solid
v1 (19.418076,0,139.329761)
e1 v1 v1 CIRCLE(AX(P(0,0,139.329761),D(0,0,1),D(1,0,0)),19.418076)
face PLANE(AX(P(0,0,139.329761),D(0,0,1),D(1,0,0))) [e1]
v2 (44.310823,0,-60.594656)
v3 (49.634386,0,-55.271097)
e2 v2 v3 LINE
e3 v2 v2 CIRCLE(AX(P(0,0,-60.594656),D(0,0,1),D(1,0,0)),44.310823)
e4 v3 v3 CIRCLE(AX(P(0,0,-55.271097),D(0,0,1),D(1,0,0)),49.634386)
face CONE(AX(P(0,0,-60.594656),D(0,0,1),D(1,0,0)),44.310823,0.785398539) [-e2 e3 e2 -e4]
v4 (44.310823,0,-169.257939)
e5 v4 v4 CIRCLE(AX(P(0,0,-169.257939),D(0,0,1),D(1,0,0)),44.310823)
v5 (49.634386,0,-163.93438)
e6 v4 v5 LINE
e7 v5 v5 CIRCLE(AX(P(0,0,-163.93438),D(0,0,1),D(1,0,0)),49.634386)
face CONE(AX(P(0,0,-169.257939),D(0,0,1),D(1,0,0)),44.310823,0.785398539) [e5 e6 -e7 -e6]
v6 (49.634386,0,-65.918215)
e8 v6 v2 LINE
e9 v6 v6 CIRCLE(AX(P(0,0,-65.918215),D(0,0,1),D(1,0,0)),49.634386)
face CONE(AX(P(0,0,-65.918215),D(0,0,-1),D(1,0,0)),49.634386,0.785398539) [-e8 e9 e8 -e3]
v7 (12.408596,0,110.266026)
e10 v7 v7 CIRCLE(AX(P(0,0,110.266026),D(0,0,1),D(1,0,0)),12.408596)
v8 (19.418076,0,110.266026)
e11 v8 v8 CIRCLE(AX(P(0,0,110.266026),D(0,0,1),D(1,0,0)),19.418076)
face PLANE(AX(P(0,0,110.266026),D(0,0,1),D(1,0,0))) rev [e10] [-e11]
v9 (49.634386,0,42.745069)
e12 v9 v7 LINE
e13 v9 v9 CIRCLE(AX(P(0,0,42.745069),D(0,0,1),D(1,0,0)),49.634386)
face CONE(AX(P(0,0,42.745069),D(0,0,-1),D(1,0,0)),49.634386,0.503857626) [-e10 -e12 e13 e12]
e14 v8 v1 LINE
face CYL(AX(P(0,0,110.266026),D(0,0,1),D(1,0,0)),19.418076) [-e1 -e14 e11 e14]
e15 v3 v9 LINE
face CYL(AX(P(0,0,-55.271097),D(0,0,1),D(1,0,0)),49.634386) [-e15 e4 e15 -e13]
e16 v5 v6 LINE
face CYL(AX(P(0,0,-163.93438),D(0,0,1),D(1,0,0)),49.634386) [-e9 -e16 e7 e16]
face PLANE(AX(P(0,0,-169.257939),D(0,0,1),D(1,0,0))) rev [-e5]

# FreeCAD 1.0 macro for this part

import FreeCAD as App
import Part
import Sketcher

V = App.Vector
Q = App.Units.Quantity

doc = App.newDocument("Part")
body = doc.addObject("PartDesign::Body", "Body")

# Sketch on XZ plane
sketch1 = body.newObject("Sketcher::SketchObject", "Sketch")
sketch1.AttachmentSupport = (doc.getObject("XZ_Plane"), [""])
sketch1.MapMode = "FlatFace"
sketch1.addGeometry(Part.LineSegment(V(0, -169, 0), V(44, -169, 0)), False)
sketch1.addGeometry(Part.LineSegment(V(44, -169, 0), V(50, -164, 0)), False)
sketch1.addGeometry(Part.LineSegment(V(50, -164, 0), V(50, -66, 0)), False)
sketch1.addGeometry(Part.LineSegment(V(50, -66, 0), V(44, -61, 0)), False)
sketch1.addGeometry(Part.LineSegment(V(44, -61, 0), V(50, -55, 0)), False)
sketch1.addGeometry(Part.LineSegment(V(50, -55, 0), V(50, 43, 0)), False)
sketch1.addGeometry(Part.LineSegment(V(50, 43, 0), V(12, 110, 0)), False)
sketch1.addGeometry(Part.LineSegment(V(12, 110, 0), V(19, 110, 0)), False)
sketch1.addGeometry(Part.LineSegment(V(19, 110, 0), V(19, 139, 0)), False)
sketch1.addGeometry(Part.LineSegment(V(19, 139, 0), V(0, 139, 0)), False)
sketch1.addGeometry(Part.LineSegment(V(0, 139, 0), V(0, -169, 0)), False)
sketch1.addConstraint(Sketcher.Constraint("Coincident", 0, 2, 1, 1))
sketch1.addConstraint(Sketcher.Constraint("Coincident", 1, 2, 2, 1))
sketch1.addConstraint(Sketcher.Constraint("Coincident", 2, 2, 3, 1))
sketch1.addConstraint(Sketcher.Constraint("Coincident", 3, 2, 4, 1))
sketch1.addConstraint(Sketcher.Constraint("Coincident", 4, 2, 5, 1))
sketch1.addConstraint(Sketcher.Constraint("Coincident", 5, 2, 6, 1))
sketch1.addConstraint(Sketcher.Constraint("Coincident", 6, 2, 7, 1))
sketch1.addConstraint(Sketcher.Constraint("Coincident", 7, 2, 8, 1))
sketch1.addConstraint(Sketcher.Constraint("Coincident", 8, 2, 9, 1))
sketch1.addConstraint(Sketcher.Constraint("Coincident", 9, 2, 10, 1))
sketch1.addConstraint(Sketcher.Constraint("Coincident", 10, 2, 0, 1))
sketch1.addConstraint(Sketcher.Constraint("Horizontal", 0))
sketch1.addConstraint(Sketcher.Constraint("Vertical", 2))
sketch1.addConstraint(Sketcher.Constraint("Vertical", 5))
sketch1.addConstraint(Sketcher.Constraint("Horizontal", 7))
sketch1.addConstraint(Sketcher.Constraint("Vertical", 8))
sketch1.addConstraint(Sketcher.Constraint("Horizontal", 9))
sketch1.addConstraint(Sketcher.Constraint("Vertical", 10))
sketch1.addConstraint(Sketcher.Constraint("PointOnObject", 9, 2, -2))
sketch1.addConstraint(Sketcher.Constraint("Perpendicular", 1, 3))
sketch1.addConstraint(Sketcher.Constraint("Perpendicular", 3, 4))
sketch1.addConstraint(Sketcher.Constraint("Vertical", 0, 2, 3, 2))
sketch1.addConstraint(Sketcher.Constraint("Vertical", 2, 2, 4, 2))
sketch1.addConstraint(Sketcher.Constraint("Equal", 2, 5))
sketch1.addConstraint(Sketcher.Constraint("Equal", 1, 3))
sketch1.addConstraint(Sketcher.Constraint("DistanceY", 10, 2, 10, 1, Q("308.5877 mm")))
sketch1.addConstraint(Sketcher.Constraint("DistanceX", 7, 1, 7, 2, Q("7.00948 mm")))
sketch1.addConstraint(Sketcher.Constraint("DistanceX", 0, 1, 0, 2, Q("44.310823 mm")))
sketch1.addConstraint(Sketcher.Constraint("DistanceX", 9, 2, 9, 1, Q("19.418076 mm")))
sketch1.addConstraint(Sketcher.Constraint("DistanceY", 2, 1, 2, 2, Q("98.016165 mm")))
sketch1.addConstraint(Sketcher.Constraint("DistanceY", 8, 1, 8, 2, Q("29.063735 mm")))
sketch1.addConstraint(Sketcher.Constraint("DistanceY", 0, 2, -1, 1, Q("169.257939 mm")))
sketch1.addConstraint(Sketcher.Constraint("DistanceY", 1, 2, -1, 1, Q("163.93438 mm")))
revolution = body.newObject("PartDesign::Revolution", "Revolution")
revolution.Profile = sketch1
revolution.ReferenceAxis = (sketch1, ["V_Axis"])
revolution.Angle = 360

doc.recompute()
